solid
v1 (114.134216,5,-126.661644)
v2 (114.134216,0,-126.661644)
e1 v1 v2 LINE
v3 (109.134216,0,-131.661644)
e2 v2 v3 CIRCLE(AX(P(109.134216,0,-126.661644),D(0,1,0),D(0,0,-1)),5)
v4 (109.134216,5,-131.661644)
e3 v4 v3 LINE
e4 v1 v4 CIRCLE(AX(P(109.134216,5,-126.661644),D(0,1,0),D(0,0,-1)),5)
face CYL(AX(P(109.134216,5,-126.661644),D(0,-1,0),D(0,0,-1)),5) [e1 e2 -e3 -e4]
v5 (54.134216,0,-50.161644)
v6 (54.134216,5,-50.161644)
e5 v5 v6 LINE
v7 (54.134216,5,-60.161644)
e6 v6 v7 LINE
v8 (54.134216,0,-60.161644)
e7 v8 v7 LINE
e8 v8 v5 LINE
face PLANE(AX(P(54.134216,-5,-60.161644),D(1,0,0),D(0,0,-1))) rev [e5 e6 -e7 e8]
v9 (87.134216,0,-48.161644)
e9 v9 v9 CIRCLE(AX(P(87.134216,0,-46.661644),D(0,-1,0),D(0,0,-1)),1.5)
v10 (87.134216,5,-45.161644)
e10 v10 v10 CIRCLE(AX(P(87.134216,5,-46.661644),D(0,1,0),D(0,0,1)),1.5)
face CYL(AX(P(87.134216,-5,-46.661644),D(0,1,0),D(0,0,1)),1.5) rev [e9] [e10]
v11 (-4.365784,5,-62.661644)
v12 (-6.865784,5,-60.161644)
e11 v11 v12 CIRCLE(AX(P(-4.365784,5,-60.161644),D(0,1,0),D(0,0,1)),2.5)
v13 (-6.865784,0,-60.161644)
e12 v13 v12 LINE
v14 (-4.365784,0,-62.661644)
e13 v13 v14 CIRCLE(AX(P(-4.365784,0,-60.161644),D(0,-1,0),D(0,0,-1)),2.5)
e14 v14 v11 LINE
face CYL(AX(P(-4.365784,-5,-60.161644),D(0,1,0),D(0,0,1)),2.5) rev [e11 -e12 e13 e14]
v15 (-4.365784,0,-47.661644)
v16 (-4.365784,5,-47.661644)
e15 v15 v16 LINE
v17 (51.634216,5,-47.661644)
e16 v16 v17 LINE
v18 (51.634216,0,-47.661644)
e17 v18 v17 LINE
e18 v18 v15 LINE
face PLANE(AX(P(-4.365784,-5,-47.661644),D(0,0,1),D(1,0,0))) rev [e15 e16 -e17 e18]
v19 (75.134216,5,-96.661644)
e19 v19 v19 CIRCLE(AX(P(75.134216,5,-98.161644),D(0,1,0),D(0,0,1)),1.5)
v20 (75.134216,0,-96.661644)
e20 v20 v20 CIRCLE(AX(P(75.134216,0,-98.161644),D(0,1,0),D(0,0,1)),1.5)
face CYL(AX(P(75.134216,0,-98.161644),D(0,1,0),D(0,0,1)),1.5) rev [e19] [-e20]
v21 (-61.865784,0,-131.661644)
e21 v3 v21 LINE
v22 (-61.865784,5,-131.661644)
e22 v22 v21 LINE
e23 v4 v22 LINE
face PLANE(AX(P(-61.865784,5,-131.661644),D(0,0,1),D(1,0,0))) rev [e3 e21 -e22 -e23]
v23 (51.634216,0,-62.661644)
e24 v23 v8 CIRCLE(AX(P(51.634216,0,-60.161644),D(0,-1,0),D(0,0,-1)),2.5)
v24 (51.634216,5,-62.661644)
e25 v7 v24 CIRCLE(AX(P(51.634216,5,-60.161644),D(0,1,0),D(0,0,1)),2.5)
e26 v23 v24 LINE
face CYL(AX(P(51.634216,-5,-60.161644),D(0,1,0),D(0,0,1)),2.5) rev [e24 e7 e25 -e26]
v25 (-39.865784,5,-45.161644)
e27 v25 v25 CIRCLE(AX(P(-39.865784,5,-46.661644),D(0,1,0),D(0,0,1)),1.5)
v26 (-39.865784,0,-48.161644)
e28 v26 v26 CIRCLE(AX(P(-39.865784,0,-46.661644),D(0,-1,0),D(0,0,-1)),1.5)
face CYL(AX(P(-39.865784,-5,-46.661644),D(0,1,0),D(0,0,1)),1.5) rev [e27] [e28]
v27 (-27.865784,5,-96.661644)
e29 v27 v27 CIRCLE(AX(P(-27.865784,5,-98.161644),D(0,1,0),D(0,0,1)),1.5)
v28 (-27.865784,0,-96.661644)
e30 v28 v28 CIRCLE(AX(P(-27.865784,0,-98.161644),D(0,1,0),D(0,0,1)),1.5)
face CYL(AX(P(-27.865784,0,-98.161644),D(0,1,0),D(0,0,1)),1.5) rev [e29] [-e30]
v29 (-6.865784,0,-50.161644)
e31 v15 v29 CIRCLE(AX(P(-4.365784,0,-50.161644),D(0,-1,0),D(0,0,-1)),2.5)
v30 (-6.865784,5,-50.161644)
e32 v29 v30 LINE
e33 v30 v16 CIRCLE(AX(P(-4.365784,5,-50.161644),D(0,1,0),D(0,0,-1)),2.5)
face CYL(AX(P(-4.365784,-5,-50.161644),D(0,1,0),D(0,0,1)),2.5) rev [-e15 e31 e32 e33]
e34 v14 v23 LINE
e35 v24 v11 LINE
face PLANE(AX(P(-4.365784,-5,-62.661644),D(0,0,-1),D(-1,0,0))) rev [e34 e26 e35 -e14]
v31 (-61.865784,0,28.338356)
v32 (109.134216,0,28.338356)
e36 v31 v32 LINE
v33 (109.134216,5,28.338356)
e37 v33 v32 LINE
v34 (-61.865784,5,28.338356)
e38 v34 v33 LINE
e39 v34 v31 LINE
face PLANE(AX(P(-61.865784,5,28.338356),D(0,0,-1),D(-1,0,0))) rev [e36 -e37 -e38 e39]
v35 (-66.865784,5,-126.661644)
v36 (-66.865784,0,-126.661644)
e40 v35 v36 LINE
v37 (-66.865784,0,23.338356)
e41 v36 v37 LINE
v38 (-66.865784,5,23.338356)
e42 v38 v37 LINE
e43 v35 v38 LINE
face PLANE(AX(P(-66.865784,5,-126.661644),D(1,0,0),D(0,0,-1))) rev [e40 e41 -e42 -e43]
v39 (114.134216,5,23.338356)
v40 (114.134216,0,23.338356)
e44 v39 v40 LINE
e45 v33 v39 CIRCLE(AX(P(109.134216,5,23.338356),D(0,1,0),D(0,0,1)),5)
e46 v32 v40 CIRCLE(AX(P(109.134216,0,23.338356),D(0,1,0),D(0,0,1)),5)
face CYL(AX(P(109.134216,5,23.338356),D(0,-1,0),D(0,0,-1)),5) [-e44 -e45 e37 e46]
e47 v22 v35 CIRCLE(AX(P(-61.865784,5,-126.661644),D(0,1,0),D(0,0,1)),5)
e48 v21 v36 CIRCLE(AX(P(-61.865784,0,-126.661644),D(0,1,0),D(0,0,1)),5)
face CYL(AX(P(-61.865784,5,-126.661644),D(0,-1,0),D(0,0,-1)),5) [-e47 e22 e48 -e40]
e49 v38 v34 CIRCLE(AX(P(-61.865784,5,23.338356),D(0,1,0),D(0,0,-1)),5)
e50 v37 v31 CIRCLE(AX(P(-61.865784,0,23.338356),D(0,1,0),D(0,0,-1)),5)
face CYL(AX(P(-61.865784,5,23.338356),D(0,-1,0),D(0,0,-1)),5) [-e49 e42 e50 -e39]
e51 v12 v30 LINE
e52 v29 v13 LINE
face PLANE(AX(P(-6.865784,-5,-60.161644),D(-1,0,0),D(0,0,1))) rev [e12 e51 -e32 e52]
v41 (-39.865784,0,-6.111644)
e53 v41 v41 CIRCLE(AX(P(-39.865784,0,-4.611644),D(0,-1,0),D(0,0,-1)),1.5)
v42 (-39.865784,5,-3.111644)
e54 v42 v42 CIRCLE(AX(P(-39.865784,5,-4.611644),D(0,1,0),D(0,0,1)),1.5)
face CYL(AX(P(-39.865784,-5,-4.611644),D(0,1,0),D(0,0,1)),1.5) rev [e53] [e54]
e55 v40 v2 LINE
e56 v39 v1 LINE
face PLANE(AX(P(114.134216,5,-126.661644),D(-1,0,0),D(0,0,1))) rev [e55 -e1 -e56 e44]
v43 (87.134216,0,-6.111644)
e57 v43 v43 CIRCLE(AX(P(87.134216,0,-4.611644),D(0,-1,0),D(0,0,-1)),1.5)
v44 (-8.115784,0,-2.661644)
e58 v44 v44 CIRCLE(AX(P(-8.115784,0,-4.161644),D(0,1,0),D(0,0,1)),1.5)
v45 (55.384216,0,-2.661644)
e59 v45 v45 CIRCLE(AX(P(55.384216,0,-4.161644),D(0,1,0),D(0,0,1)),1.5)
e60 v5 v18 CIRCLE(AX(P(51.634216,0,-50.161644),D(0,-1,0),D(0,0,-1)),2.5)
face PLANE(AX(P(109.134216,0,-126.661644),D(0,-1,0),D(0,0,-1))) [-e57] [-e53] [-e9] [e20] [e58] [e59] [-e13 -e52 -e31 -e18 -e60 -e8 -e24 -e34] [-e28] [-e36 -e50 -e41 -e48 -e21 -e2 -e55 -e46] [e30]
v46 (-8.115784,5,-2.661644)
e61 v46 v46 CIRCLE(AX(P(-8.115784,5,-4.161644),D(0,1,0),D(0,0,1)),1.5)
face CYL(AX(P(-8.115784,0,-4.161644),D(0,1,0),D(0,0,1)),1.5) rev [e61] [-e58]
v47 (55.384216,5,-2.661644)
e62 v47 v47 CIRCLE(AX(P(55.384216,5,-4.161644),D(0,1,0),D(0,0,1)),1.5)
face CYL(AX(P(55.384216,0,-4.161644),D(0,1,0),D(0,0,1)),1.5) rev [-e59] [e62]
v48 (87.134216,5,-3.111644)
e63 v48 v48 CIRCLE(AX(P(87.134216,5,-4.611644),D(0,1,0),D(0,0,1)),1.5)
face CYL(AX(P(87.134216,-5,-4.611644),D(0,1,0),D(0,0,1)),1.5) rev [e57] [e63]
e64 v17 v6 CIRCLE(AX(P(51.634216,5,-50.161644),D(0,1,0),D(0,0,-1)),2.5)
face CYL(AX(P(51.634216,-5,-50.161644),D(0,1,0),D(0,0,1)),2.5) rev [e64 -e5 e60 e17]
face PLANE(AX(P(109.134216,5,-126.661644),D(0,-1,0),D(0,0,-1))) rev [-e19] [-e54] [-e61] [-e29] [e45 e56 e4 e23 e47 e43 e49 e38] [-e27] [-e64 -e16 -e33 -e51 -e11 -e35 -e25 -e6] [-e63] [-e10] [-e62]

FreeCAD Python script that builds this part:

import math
import FreeCAD as App
import Part
import Sketcher
Q = App.Units.Quantity

doc = App.newDocument("Part")
body = doc.addObject("PartDesign::Body", "Body")

sketch1 = body.newObject("Sketcher::SketchObject", "Sketch")
sketch1.AttachmentSupport = (doc.getObject("XZ_Plane"), [""])
sketch1.MapMode = "FlatFace"
sketch1.addGeometry(Part.LineSegment(App.Vector(109.134216, -131.661644, 0), App.Vector(-61.865784, -131.661644, 0)), False)
sketch1.addGeometry(Part.ArcOfCircle(Part.Circle(App.Vector(-61.865784, -126.661644, 0), App.Vector(0, 0, 1), 5), math.radians(180), math.radians(270)), False)
sketch1.addGeometry(Part.LineSegment(App.Vector(-66.865784, -126.661644, 0), App.Vector(-66.865784, 23.338356, 0)), False)
sketch1.addGeometry(Part.ArcOfCircle(Part.Circle(App.Vector(-61.865784, 23.338356, 0), App.Vector(0, 0, 1), 5), math.radians(90), math.radians(180)), False)
sketch1.addGeometry(Part.LineSegment(App.Vector(-61.865784, 28.338356, 0), App.Vector(109.134216, 28.338356, 0)), False)
sketch1.addGeometry(Part.ArcOfCircle(Part.Circle(App.Vector(109.134216, 23.338356, 0), App.Vector(0, 0, 1), 5), math.radians(0), math.radians(90)), False)
sketch1.addGeometry(Part.LineSegment(App.Vector(114.134216, 23.338356, 0), App.Vector(114.134216, -126.661644, 0)), False)
sketch1.addGeometry(Part.ArcOfCircle(Part.Circle(App.Vector(109.134216, -126.661644, 0), App.Vector(0, 0, 1), 5), math.radians(-90), math.radians(0)), False)
sketch1.addConstraint(Sketcher.Constraint("Tangent", 0, 2, 1, 2))
sketch1.addConstraint(Sketcher.Constraint("Tangent", 1, 1, 2, 1))
sketch1.addConstraint(Sketcher.Constraint("Tangent", 2, 2, 3, 2))
sketch1.addConstraint(Sketcher.Constraint("Tangent", 3, 1, 4, 1))
sketch1.addConstraint(Sketcher.Constraint("Tangent", 4, 2, 5, 2))
sketch1.addConstraint(Sketcher.Constraint("Tangent", 5, 1, 6, 1))
sketch1.addConstraint(Sketcher.Constraint("Tangent", 6, 2, 7, 2))
sketch1.addConstraint(Sketcher.Constraint("Tangent", 7, 1, 0, 1))
sketch1.addConstraint(Sketcher.Constraint("Horizontal", 0))
sketch1.addConstraint(Sketcher.Constraint("Vertical", 2))
sketch1.addConstraint(Sketcher.Constraint("Horizontal", 4))
sketch1.addConstraint(Sketcher.Constraint("Vertical", 6))
sketch1.addConstraint(Sketcher.Constraint("Equal", 1, 3))
sketch1.addConstraint(Sketcher.Constraint("Equal", 3, 5))
sketch1.addConstraint(Sketcher.Constraint("Equal", 5, 7))
sketch1.addConstraint(Sketcher.Constraint("Radius", 1, Q("5 mm")))
sketch1.addConstraint(Sketcher.Constraint("DistanceX", 0, 2, 0, 1, Q("171 mm")))
sketch1.addConstraint(Sketcher.Constraint("DistanceY", 2, 1, 2, 2, Q("150 mm")))
sketch1.addConstraint(Sketcher.Constraint("DistanceX", 1, 3, -1, 1, Q("61.865784 mm")))
sketch1.addConstraint(Sketcher.Constraint("DistanceY", 1, 3, -1, 1, Q("126.661644 mm")))
pad1 = body.newObject("PartDesign::Pad", "Pad")
pad1.Profile = sketch1
pad1.Length = 5
pad1.Reversed = True

sketch2 = body.newObject("Sketcher::SketchObject", "Sketch001")
sketch2.AttachmentSupport = (doc.getObject("XZ_Plane"), [""])
sketch2.MapMode = "FlatFace"
sketch2.AttachmentOffset = App.Placement(App.Vector(0, 0, -5), App.Rotation())
sketch2.addGeometry(Part.Circle(App.Vector(-27.865784, -98.161644, 0), App.Vector(0, 0, 1), 1.5), False)
sketch2.addGeometry(Part.Circle(App.Vector(75.134216, -98.161644, 0), App.Vector(0, 0, 1), 1.5), False)
sketch2.addGeometry(Part.Circle(App.Vector(-8.115784, -4.161644, 0), App.Vector(0, 0, 1), 1.5), False)
sketch2.addGeometry(Part.Circle(App.Vector(55.384216, -4.161644, 0), App.Vector(0, 0, 1), 1.5), False)
sketch2.addConstraint(Sketcher.Constraint("Equal", 0, 1))
sketch2.addConstraint(Sketcher.Constraint("Equal", 1, 2))
sketch2.addConstraint(Sketcher.Constraint("Equal", 2, 3))
sketch2.addConstraint(Sketcher.Constraint("Horizontal", 0, 3, 1, 3))
sketch2.addConstraint(Sketcher.Constraint("Horizontal", 2, 3, 3, 3))
sketch2.addConstraint(Sketcher.Constraint("Diameter", 0, Q("3 mm")))
sketch2.addConstraint(Sketcher.Constraint("DistanceX", 0, 3, 1, 3, Q("103 mm")))
sketch2.addConstraint(Sketcher.Constraint("DistanceY", 0, 3, 2, 3, Q("94 mm")))
sketch2.addConstraint(Sketcher.Constraint("DistanceX", 2, 3, 3, 3, Q("63.5 mm")))
sketch2.addConstraint(Sketcher.Constraint("DistanceX", 0, 3, 2, 3, Q("19.75 mm")))
sketch2.addConstraint(Sketcher.Constraint("DistanceX", 0, 3, -1, 1, Q("27.865784 mm")))
sketch2.addConstraint(Sketcher.Constraint("DistanceY", 0, 3, -1, 1, Q("98.161644 mm")))
pocket1 = body.newObject("PartDesign::Pocket", "Pocket")
pocket1.Profile = sketch2
pocket1.Length = 5
pocket1.Reversed = True

sketch3 = body.newObject("Sketcher::SketchObject", "Sketch002")
sketch3.AttachmentSupport = (doc.getObject("XZ_Plane"), [""])
sketch3.MapMode = "FlatFace"
sketch3.AttachmentOffset = App.Placement(App.Vector(0, 0, -5), App.Rotation())
sketch3.addGeometry(Part.Circle(App.Vector(-39.865784, -46.661644, 0), App.Vector(0, 0, 1), 1.5), False)
sketch3.addGeometry(Part.Circle(App.Vector(-39.865784, -4.611644, 0), App.Vector(0, 0, 1), 1.5), False)
sketch3.addGeometry(Part.Circle(App.Vector(87.134216, -46.661644, 0), App.Vector(0, 0, 1), 1.5), False)
sketch3.addGeometry(Part.Circle(App.Vector(87.134216, -4.611644, 0), App.Vector(0, 0, 1), 1.5), False)
sketch3.addConstraint(Sketcher.Constraint("Equal", 0, 1))
sketch3.addConstraint(Sketcher.Constraint("Equal", 1, 2))
sketch3.addConstraint(Sketcher.Constraint("Equal", 2, 3))
sketch3.addConstraint(Sketcher.Constraint("Horizontal", 0, 3, 2, 3))
sketch3.addConstraint(Sketcher.Constraint("Horizontal", 1, 3, 3, 3))
sketch3.addConstraint(Sketcher.Constraint("Vertical", 0, 3, 1, 3))
sketch3.addConstraint(Sketcher.Constraint("Vertical", 2, 3, 3, 3))
sketch3.addConstraint(Sketcher.Constraint("Diameter", 0, Q("3 mm")))
sketch3.addConstraint(Sketcher.Constraint("DistanceX", 0, 3, 2, 3, Q("127 mm")))
sketch3.addConstraint(Sketcher.Constraint("DistanceY", 0, 3, 1, 3, Q("42.05 mm")))
sketch3.addConstraint(Sketcher.Constraint("DistanceX", 0, 3, -1, 1, Q("39.865784 mm")))
sketch3.addConstraint(Sketcher.Constraint("DistanceY", 0, 3, -1, 1, Q("46.661644 mm")))
pocket2 = body.newObject("PartDesign::Pocket", "Pocket001")
pocket2.Profile = sketch3
pocket2.Length = 10
pocket2.Reversed = True

sketch4 = body.newObject("Sketcher::SketchObject", "Sketch003")
sketch4.AttachmentSupport = (doc.getObject("XZ_Plane"), [""])
sketch4.MapMode = "FlatFace"
sketch4.AttachmentOffset = App.Placement(App.Vector(0, 0, -5), App.Rotation())
sketch4.addGeometry(Part.LineSegment(App.Vector(51.634216, -62.661644, 0), App.Vector(-4.365784, -62.661644, 0)), False)
sketch4.addGeometry(Part.ArcOfCircle(Part.Circle(App.Vector(-4.365784, -60.161644, 0), App.Vector(0, 0, 1), 2.5), math.radians(180), math.radians(270)), False)
sketch4.addGeometry(Part.LineSegment(App.Vector(-6.865784, -60.161644, 0), App.Vector(-6.865784, -50.161644, 0)), False)
sketch4.addGeometry(Part.ArcOfCircle(Part.Circle(App.Vector(-4.365784, -50.161644, 0), App.Vector(0, 0, 1), 2.5), math.radians(90), math.radians(180)), False)
sketch4.addGeometry(Part.LineSegment(App.Vector(-4.365784, -47.661644, 0), App.Vector(51.634216, -47.661644, 0)), False)
sketch4.addGeometry(Part.ArcOfCircle(Part.Circle(App.Vector(51.634216, -50.161644, 0), App.Vector(0, 0, 1), 2.5), math.radians(0), math.radians(90)), False)
sketch4.addGeometry(Part.LineSegment(App.Vector(54.134216, -50.161644, 0), App.Vector(54.134216, -60.161644, 0)), False)
sketch4.addGeometry(Part.ArcOfCircle(Part.Circle(App.Vector(51.634216, -60.161644, 0), App.Vector(0, 0, 1), 2.5), math.radians(-90), math.radians(0)), False)
sketch4.addConstraint(Sketcher.Constraint("Tangent", 0, 2, 1, 2))
sketch4.addConstraint(Sketcher.Constraint("Tangent", 1, 1, 2, 1))
sketch4.addConstraint(Sketcher.Constraint("Tangent", 2, 2, 3, 2))
sketch4.addConstraint(Sketcher.Constraint("Tangent", 3, 1, 4, 1))
sketch4.addConstraint(Sketcher.Constraint("Tangent", 4, 2, 5, 2))
sketch4.addConstraint(Sketcher.Constraint("Tangent", 5, 1, 6, 1))
sketch4.addConstraint(Sketcher.Constraint("Tangent", 6, 2, 7, 2))
sketch4.addConstraint(Sketcher.Constraint("Tangent", 7, 1, 0, 1))
sketch4.addConstraint(Sketcher.Constraint("Horizontal", 0))
sketch4.addConstraint(Sketcher.Constraint("Vertical", 2))
sketch4.addConstraint(Sketcher.Constraint("Horizontal", 4))
sketch4.addConstraint(Sketcher.Constraint("Vertical", 6))
sketch4.addConstraint(Sketcher.Constraint("Equal", 1, 3))
sketch4.addConstraint(Sketcher.Constraint("Equal", 3, 5))
sketch4.addConstraint(Sketcher.Constraint("Equal", 5, 7))
sketch4.addConstraint(Sketcher.Constraint("Radius", 1, Q("2.5 mm")))
sketch4.addConstraint(Sketcher.Constraint("DistanceX", 0, 2, 0, 1, Q("56 mm")))
sketch4.addConstraint(Sketcher.Constraint("DistanceY", 2, 1, 2, 2, Q("10 mm")))
sketch4.addConstraint(Sketcher.Constraint("DistanceX", 1, 3, -1, 1, Q("4.365784 mm")))
sketch4.addConstraint(Sketcher.Constraint("DistanceY", 1, 3, -1, 1, Q("60.161644 mm")))
pocket3 = body.newObject("PartDesign::Pocket", "Pocket002")
pocket3.Profile = sketch4
pocket3.Length = 10
pocket3.Reversed = True

doc.recompute()
